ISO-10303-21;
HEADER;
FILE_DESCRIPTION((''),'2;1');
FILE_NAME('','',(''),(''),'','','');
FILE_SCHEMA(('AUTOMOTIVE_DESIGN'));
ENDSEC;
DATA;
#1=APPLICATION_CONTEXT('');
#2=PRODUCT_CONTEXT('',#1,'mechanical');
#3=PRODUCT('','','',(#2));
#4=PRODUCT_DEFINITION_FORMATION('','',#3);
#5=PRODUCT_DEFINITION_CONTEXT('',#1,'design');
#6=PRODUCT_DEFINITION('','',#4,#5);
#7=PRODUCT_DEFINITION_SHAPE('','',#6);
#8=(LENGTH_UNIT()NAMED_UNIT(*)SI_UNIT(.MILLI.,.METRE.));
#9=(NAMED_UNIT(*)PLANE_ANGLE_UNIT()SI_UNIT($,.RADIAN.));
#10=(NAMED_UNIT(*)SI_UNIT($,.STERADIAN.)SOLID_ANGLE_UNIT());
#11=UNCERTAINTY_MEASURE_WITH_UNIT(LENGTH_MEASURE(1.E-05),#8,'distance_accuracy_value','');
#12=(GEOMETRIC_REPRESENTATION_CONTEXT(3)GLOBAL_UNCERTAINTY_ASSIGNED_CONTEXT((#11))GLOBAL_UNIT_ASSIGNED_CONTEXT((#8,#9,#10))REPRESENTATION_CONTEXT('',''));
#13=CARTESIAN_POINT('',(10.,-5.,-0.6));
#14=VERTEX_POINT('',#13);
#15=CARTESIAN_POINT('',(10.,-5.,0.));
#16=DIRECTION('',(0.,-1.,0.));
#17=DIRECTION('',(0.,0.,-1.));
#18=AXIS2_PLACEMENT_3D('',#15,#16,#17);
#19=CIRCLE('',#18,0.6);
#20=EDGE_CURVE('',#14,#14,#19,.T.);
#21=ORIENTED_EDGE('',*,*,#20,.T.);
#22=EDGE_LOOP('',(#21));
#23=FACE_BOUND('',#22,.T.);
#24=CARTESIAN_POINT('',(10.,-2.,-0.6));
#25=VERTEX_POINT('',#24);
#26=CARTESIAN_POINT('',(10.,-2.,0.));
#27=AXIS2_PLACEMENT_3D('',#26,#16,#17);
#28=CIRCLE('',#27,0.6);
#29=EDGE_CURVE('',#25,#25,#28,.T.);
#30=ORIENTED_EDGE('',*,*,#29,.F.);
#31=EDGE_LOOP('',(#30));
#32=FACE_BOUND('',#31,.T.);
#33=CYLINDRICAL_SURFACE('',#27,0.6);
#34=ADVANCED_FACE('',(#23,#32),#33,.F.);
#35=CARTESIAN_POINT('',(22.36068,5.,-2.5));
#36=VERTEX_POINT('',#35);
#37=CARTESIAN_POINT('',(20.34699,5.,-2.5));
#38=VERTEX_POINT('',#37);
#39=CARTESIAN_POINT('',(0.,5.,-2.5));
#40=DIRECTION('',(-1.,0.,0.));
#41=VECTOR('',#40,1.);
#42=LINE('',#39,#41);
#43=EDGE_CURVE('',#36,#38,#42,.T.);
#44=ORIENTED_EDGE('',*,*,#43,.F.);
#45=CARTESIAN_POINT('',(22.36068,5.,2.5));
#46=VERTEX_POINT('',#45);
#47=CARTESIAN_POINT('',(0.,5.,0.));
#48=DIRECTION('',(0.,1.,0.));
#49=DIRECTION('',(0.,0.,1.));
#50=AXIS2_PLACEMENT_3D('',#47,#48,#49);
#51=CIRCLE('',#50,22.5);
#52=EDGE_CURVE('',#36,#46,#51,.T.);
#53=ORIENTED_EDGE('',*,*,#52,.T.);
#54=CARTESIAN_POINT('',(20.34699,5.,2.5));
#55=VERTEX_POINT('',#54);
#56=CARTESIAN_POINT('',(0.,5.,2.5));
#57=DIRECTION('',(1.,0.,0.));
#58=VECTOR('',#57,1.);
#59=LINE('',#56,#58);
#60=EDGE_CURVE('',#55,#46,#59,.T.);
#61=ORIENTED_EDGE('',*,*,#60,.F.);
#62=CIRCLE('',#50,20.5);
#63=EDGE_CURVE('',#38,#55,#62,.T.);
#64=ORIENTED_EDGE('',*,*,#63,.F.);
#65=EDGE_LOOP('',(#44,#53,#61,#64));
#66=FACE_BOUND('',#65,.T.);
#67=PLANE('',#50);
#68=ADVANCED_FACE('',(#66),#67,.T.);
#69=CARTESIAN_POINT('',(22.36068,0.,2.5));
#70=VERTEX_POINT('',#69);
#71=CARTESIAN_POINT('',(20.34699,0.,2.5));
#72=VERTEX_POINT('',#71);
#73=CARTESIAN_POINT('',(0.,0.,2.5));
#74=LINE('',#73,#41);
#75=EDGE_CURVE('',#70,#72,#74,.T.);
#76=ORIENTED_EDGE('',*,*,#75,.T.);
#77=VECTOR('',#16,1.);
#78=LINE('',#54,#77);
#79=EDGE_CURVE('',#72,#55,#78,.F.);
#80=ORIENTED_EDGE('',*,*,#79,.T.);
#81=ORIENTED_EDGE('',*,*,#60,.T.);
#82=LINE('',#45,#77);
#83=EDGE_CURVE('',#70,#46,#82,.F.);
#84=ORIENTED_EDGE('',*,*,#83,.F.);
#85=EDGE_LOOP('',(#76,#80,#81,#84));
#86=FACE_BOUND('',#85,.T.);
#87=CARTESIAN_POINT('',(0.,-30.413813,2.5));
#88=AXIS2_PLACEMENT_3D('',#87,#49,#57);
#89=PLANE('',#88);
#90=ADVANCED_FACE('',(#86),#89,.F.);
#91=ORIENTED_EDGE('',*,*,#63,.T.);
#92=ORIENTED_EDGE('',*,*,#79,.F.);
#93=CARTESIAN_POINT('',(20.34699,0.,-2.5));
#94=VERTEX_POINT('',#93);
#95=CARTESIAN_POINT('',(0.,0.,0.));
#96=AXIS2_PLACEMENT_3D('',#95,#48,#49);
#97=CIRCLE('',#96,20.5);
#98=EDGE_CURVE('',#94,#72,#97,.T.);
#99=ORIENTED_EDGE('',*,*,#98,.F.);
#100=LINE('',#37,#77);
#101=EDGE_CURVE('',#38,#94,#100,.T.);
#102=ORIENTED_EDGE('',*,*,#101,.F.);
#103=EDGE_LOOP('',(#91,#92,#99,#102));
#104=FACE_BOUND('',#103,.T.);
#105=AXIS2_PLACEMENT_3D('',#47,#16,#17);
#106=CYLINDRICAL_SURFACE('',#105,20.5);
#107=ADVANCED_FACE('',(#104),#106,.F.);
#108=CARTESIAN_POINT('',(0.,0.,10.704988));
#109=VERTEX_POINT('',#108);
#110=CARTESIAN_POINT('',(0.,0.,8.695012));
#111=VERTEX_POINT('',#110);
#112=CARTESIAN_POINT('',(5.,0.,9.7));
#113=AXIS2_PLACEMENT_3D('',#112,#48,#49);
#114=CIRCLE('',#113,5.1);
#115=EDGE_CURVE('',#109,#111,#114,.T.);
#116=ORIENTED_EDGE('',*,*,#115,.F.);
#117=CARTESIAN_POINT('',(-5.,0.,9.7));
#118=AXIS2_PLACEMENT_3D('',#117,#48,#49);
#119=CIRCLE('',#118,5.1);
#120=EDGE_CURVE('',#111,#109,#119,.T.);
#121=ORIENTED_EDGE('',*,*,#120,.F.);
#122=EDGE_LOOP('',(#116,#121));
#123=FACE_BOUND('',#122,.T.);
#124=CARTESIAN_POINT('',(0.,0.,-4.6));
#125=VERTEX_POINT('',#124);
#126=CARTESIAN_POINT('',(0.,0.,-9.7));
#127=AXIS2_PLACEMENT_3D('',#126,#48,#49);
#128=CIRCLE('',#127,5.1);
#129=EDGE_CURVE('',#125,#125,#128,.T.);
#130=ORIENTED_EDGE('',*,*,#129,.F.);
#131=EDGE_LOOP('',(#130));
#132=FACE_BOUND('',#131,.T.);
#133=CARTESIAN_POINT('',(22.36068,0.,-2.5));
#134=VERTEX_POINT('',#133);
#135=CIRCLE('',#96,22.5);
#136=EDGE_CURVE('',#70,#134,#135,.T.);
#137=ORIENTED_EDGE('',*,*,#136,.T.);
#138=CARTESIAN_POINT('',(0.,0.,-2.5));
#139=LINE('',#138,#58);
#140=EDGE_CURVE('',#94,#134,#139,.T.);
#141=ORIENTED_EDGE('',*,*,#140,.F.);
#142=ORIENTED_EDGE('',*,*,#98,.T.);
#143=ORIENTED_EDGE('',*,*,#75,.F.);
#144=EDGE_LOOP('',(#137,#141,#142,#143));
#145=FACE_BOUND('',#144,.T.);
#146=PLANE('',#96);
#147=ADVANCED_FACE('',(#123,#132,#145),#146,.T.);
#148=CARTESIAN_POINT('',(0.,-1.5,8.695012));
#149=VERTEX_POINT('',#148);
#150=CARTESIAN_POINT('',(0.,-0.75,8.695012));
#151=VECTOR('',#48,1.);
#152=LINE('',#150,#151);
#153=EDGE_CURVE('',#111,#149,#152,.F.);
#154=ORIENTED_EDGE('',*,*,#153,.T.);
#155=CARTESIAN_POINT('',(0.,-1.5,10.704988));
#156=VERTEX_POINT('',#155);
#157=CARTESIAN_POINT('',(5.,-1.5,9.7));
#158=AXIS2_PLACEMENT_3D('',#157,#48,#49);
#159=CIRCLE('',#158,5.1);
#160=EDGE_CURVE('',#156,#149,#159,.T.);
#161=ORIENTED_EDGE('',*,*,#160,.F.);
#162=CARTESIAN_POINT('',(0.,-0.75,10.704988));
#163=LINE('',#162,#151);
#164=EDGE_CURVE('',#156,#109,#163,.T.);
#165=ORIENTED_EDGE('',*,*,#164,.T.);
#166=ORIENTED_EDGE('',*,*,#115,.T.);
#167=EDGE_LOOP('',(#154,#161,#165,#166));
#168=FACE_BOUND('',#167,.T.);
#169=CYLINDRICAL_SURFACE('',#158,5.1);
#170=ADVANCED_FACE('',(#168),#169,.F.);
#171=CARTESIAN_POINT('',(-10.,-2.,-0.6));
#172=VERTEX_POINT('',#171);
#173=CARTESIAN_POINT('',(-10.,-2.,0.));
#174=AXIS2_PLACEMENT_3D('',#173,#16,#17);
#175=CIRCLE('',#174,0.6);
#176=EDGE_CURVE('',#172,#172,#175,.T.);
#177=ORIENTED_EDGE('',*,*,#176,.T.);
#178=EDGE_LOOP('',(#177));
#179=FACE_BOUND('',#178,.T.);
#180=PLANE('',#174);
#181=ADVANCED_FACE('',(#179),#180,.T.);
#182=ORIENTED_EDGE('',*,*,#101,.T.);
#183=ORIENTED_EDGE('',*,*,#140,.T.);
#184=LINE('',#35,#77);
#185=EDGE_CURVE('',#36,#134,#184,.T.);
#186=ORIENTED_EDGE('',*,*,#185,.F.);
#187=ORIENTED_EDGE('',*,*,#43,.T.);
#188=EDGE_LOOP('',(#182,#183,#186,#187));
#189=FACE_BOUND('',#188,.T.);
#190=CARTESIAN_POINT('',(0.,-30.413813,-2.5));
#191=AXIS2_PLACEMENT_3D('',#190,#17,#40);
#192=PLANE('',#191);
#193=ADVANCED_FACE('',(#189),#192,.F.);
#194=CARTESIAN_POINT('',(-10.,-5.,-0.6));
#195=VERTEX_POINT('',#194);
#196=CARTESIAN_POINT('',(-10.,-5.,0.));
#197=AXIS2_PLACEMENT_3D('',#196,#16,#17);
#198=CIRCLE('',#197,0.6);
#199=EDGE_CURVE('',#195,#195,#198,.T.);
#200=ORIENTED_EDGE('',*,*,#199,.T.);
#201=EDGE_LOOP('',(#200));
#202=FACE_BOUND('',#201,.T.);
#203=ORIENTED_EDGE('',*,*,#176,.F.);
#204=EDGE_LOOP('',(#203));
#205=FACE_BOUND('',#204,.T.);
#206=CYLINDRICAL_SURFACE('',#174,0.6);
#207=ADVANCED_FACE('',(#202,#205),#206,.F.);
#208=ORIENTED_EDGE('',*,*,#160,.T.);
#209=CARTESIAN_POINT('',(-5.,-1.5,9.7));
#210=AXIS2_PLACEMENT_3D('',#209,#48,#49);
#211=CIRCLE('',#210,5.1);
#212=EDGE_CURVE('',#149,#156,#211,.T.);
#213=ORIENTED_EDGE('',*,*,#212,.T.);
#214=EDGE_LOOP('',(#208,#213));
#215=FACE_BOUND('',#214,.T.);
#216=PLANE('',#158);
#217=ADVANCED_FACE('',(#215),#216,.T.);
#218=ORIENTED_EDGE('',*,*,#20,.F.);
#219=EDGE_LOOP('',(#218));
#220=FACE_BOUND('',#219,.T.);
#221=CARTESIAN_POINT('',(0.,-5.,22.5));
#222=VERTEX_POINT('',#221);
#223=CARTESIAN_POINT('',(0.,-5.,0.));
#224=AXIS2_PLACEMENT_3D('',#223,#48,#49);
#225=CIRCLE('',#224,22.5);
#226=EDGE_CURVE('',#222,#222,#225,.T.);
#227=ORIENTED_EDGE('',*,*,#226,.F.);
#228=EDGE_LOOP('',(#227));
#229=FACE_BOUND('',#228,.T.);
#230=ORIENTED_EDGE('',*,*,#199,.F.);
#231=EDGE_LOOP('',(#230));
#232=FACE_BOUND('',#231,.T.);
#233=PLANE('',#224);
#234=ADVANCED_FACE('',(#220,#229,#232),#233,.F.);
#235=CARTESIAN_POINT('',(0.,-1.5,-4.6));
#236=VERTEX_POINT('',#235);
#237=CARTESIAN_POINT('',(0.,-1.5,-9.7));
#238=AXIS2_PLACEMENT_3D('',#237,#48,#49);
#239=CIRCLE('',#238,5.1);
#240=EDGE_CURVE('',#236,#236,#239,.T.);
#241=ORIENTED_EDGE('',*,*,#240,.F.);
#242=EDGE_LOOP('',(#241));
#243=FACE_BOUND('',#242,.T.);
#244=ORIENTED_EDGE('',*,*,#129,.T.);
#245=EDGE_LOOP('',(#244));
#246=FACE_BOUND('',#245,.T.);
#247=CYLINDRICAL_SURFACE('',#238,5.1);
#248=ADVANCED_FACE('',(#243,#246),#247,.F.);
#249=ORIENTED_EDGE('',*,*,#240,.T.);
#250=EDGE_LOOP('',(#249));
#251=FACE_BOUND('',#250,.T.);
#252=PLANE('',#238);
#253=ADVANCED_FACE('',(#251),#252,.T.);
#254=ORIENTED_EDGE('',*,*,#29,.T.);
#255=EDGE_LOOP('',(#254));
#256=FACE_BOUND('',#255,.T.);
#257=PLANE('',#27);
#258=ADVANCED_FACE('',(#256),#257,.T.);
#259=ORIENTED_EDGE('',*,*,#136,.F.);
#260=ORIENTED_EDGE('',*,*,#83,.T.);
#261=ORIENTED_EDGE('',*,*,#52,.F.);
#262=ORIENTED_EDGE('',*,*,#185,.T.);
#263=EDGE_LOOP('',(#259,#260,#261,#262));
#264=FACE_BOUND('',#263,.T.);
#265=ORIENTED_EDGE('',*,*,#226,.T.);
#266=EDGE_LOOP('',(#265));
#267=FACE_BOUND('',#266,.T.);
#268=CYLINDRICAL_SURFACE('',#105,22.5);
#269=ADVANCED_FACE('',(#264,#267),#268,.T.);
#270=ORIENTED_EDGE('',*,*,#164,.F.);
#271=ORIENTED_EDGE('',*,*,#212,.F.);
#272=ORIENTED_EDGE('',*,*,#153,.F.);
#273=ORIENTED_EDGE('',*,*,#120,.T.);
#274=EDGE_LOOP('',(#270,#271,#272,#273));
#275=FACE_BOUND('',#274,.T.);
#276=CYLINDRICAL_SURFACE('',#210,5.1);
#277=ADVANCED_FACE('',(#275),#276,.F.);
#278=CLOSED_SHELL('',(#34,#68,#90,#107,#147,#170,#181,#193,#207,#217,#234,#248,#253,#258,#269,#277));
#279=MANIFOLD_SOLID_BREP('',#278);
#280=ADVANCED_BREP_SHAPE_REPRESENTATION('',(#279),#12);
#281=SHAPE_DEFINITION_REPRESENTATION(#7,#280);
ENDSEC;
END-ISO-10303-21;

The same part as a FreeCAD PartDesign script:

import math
import FreeCAD as App
import Part
import Sketcher
from FreeCAD import Vector

doc = App.newDocument("Part")
body = doc.addObject("PartDesign::Body", "Body")

# Sketch on XZ plane
sketch1 = body.newObject("Sketcher::SketchObject", "Sketch")
sketch1.AttachmentSupport = (doc.getObject("XZ_Plane"), [""])
sketch1.MapMode = "FlatFace"
sketch1.addGeometry([
    Part.Circle(Vector(0, 0, 0), Vector(0, 0, 1), 22.5),
    Part.Circle(Vector(0, 0, 0), Vector(0, 0, 1), 20.5),
], False)
sketch1.addConstraint([
    Sketcher.Constraint("Coincident", 0, 3, -1, 1),
    Sketcher.Constraint("Coincident", 1, 3, -1, 1),
    Sketcher.Constraint("Diameter", 0, 45.0),
    Sketcher.Constraint("Diameter", 1, 41.0),
])
pad1 = body.newObject("PartDesign::Pad", "Pad")
pad1.Profile = sketch1
pad1.Length = 5
pad1.Reversed = True

# Sketch on XZ plane
sketch2 = body.newObject("Sketcher::SketchObject", "Sketch001")
sketch2.AttachmentSupport = (doc.getObject("XZ_Plane"), [""])
sketch2.MapMode = "FlatFace"
sketch2.AttachmentOffset = App.Placement(Vector(0, 0, 5), App.Rotation())
sketch2.addGeometry(Part.Circle(Vector(0, 0, 0), Vector(0, 0, 1), 22.5), False)
sketch2.addConstraint([
    Sketcher.Constraint("Coincident", 0, 3, -1, 1),
    Sketcher.Constraint("Diameter", 0, 45.0),
])
pad2 = body.newObject("PartDesign::Pad", "Pad001")
pad2.Profile = sketch2
pad2.Length = 5
pad2.Reversed = True

# Sketch on XZ plane
sketch3 = body.newObject("Sketcher::SketchObject", "Sketch002")
sketch3.AttachmentSupport = (doc.getObject("XZ_Plane"), [""])
sketch3.MapMode = "FlatFace"
sketch3.addGeometry([
    Part.Circle(Vector(0, -9.7, 0), Vector(0, 0, 1), 5.1),
    Part.ArcOfCircle(Part.Circle(Vector(5, 9.7, 0), Vector(0, 0, 1), 5.1), math.radians(-168.635123), math.radians(168.635123)),
    Part.ArcOfCircle(Part.Circle(Vector(-5, 9.7, 0), Vector(0, 0, 1), 5.1), math.radians(11.364877), math.radians(348.635123)),
], False)
sketch3.addConstraint([
    Sketcher.Constraint("Coincident", 1, 1, 2, 2),
    Sketcher.Constraint("Coincident", 2, 1, 1, 2),
    Sketcher.Constraint("Equal", 0, 1),
    Sketcher.Constraint("Equal", 1, 2),
    Sketcher.Constraint("Symmetric", 1, 3, 2, 3, -2),
    Sketcher.Constraint("PointOnObject", 0, 3, -2),
    Sketcher.Constraint("Diameter", 0, 10.2),
    Sketcher.Constraint("DistanceX", -1, 1, 1, 3, 5.0),
    Sketcher.Constraint("DistanceY", 0, 3, -1, 1, 9.7),
    Sketcher.Constraint("DistanceY", -1, 1, 1, 3, 9.7),
])
pocket1 = body.newObject("PartDesign::Pocket", "Pocket")
pocket1.Profile = sketch3
pocket1.Length = 1.5
pocket1.Reversed = True

# Sketch on XZ plane
sketch4 = body.newObject("Sketcher::SketchObject", "Sketch003")
sketch4.AttachmentSupport = (doc.getObject("XZ_Plane"), [""])
sketch4.MapMode = "FlatFace"
sketch4.AttachmentOffset = App.Placement(Vector(0, 0, -5), App.Rotation())
sketch4.addGeometry([
    Part.LineSegment(Vector(0, -2.5, 0), Vector(0, 2.5, 0)),
    Part.LineSegment(Vector(0, 2.5, 0), Vector(30, 2.5, 0)),
    Part.LineSegment(Vector(30, 2.5, 0), Vector(30, -2.5, 0)),
    Part.LineSegment(Vector(30, -2.5, 0), Vector(0, -2.5, 0)),
], False)
sketch4.addConstraint([
    Sketcher.Constraint("Coincident", 0, 2, 1, 1),
    Sketcher.Constraint("Coincident", 1, 2, 2, 1),
    Sketcher.Constraint("Coincident", 2, 2, 3, 1),
    Sketcher.Constraint("Coincident", 3, 2, 0, 1),
    Sketcher.Constraint("Vertical", 0),
    Sketcher.Constraint("Horizontal", 1),
    Sketcher.Constraint("Vertical", 2),
    Sketcher.Constraint("Horizontal", 3),
    Sketcher.Constraint("Symmetric", 0, 2, 3, 2, -1, 1),
    Sketcher.Constraint("DistanceX", 1, 1, 1, 2, 30.0),
    Sketcher.Constraint("DistanceY", 0, 1, 0, 2, 5.0),
])
pocket2 = body.newObject("PartDesign::Pocket", "Pocket001")
pocket2.Profile = sketch4
pocket2.Length = 5
pocket2.Reversed = True

# Sketch on XZ plane
sketch5 = body.newObject("Sketcher::SketchObject", "Sketch004")
sketch5.AttachmentSupport = (doc.getObject("XZ_Plane"), [""])
sketch5.MapMode = "FlatFace"
sketch5.AttachmentOffset = App.Placement(Vector(0, 0, 5), App.Rotation())
sketch5.addGeometry([
    Part.Circle(Vector(-10, 0, 0), Vector(0, 0, 1), 0.6),
    Part.Circle(Vector(10, 0, 0), Vector(0, 0, 1), 0.6),
], False)
sketch5.addConstraint([
    Sketcher.Constraint("Equal", 0, 1),
    Sketcher.Constraint("Symmetric", 0, 3, 1, 3, -1, 1),
    Sketcher.Constraint("PointOnObject", 0, 3, -1),
    Sketcher.Constraint("Diameter", 0, 1.2),
    Sketcher.Constraint("DistanceX", 0, 3, -1, 1, 10.0),
])
pocket3 = body.newObject("PartDesign::Pocket", "Pocket002")
pocket3.Profile = sketch5
pocket3.Length = 3

doc.recompute()
